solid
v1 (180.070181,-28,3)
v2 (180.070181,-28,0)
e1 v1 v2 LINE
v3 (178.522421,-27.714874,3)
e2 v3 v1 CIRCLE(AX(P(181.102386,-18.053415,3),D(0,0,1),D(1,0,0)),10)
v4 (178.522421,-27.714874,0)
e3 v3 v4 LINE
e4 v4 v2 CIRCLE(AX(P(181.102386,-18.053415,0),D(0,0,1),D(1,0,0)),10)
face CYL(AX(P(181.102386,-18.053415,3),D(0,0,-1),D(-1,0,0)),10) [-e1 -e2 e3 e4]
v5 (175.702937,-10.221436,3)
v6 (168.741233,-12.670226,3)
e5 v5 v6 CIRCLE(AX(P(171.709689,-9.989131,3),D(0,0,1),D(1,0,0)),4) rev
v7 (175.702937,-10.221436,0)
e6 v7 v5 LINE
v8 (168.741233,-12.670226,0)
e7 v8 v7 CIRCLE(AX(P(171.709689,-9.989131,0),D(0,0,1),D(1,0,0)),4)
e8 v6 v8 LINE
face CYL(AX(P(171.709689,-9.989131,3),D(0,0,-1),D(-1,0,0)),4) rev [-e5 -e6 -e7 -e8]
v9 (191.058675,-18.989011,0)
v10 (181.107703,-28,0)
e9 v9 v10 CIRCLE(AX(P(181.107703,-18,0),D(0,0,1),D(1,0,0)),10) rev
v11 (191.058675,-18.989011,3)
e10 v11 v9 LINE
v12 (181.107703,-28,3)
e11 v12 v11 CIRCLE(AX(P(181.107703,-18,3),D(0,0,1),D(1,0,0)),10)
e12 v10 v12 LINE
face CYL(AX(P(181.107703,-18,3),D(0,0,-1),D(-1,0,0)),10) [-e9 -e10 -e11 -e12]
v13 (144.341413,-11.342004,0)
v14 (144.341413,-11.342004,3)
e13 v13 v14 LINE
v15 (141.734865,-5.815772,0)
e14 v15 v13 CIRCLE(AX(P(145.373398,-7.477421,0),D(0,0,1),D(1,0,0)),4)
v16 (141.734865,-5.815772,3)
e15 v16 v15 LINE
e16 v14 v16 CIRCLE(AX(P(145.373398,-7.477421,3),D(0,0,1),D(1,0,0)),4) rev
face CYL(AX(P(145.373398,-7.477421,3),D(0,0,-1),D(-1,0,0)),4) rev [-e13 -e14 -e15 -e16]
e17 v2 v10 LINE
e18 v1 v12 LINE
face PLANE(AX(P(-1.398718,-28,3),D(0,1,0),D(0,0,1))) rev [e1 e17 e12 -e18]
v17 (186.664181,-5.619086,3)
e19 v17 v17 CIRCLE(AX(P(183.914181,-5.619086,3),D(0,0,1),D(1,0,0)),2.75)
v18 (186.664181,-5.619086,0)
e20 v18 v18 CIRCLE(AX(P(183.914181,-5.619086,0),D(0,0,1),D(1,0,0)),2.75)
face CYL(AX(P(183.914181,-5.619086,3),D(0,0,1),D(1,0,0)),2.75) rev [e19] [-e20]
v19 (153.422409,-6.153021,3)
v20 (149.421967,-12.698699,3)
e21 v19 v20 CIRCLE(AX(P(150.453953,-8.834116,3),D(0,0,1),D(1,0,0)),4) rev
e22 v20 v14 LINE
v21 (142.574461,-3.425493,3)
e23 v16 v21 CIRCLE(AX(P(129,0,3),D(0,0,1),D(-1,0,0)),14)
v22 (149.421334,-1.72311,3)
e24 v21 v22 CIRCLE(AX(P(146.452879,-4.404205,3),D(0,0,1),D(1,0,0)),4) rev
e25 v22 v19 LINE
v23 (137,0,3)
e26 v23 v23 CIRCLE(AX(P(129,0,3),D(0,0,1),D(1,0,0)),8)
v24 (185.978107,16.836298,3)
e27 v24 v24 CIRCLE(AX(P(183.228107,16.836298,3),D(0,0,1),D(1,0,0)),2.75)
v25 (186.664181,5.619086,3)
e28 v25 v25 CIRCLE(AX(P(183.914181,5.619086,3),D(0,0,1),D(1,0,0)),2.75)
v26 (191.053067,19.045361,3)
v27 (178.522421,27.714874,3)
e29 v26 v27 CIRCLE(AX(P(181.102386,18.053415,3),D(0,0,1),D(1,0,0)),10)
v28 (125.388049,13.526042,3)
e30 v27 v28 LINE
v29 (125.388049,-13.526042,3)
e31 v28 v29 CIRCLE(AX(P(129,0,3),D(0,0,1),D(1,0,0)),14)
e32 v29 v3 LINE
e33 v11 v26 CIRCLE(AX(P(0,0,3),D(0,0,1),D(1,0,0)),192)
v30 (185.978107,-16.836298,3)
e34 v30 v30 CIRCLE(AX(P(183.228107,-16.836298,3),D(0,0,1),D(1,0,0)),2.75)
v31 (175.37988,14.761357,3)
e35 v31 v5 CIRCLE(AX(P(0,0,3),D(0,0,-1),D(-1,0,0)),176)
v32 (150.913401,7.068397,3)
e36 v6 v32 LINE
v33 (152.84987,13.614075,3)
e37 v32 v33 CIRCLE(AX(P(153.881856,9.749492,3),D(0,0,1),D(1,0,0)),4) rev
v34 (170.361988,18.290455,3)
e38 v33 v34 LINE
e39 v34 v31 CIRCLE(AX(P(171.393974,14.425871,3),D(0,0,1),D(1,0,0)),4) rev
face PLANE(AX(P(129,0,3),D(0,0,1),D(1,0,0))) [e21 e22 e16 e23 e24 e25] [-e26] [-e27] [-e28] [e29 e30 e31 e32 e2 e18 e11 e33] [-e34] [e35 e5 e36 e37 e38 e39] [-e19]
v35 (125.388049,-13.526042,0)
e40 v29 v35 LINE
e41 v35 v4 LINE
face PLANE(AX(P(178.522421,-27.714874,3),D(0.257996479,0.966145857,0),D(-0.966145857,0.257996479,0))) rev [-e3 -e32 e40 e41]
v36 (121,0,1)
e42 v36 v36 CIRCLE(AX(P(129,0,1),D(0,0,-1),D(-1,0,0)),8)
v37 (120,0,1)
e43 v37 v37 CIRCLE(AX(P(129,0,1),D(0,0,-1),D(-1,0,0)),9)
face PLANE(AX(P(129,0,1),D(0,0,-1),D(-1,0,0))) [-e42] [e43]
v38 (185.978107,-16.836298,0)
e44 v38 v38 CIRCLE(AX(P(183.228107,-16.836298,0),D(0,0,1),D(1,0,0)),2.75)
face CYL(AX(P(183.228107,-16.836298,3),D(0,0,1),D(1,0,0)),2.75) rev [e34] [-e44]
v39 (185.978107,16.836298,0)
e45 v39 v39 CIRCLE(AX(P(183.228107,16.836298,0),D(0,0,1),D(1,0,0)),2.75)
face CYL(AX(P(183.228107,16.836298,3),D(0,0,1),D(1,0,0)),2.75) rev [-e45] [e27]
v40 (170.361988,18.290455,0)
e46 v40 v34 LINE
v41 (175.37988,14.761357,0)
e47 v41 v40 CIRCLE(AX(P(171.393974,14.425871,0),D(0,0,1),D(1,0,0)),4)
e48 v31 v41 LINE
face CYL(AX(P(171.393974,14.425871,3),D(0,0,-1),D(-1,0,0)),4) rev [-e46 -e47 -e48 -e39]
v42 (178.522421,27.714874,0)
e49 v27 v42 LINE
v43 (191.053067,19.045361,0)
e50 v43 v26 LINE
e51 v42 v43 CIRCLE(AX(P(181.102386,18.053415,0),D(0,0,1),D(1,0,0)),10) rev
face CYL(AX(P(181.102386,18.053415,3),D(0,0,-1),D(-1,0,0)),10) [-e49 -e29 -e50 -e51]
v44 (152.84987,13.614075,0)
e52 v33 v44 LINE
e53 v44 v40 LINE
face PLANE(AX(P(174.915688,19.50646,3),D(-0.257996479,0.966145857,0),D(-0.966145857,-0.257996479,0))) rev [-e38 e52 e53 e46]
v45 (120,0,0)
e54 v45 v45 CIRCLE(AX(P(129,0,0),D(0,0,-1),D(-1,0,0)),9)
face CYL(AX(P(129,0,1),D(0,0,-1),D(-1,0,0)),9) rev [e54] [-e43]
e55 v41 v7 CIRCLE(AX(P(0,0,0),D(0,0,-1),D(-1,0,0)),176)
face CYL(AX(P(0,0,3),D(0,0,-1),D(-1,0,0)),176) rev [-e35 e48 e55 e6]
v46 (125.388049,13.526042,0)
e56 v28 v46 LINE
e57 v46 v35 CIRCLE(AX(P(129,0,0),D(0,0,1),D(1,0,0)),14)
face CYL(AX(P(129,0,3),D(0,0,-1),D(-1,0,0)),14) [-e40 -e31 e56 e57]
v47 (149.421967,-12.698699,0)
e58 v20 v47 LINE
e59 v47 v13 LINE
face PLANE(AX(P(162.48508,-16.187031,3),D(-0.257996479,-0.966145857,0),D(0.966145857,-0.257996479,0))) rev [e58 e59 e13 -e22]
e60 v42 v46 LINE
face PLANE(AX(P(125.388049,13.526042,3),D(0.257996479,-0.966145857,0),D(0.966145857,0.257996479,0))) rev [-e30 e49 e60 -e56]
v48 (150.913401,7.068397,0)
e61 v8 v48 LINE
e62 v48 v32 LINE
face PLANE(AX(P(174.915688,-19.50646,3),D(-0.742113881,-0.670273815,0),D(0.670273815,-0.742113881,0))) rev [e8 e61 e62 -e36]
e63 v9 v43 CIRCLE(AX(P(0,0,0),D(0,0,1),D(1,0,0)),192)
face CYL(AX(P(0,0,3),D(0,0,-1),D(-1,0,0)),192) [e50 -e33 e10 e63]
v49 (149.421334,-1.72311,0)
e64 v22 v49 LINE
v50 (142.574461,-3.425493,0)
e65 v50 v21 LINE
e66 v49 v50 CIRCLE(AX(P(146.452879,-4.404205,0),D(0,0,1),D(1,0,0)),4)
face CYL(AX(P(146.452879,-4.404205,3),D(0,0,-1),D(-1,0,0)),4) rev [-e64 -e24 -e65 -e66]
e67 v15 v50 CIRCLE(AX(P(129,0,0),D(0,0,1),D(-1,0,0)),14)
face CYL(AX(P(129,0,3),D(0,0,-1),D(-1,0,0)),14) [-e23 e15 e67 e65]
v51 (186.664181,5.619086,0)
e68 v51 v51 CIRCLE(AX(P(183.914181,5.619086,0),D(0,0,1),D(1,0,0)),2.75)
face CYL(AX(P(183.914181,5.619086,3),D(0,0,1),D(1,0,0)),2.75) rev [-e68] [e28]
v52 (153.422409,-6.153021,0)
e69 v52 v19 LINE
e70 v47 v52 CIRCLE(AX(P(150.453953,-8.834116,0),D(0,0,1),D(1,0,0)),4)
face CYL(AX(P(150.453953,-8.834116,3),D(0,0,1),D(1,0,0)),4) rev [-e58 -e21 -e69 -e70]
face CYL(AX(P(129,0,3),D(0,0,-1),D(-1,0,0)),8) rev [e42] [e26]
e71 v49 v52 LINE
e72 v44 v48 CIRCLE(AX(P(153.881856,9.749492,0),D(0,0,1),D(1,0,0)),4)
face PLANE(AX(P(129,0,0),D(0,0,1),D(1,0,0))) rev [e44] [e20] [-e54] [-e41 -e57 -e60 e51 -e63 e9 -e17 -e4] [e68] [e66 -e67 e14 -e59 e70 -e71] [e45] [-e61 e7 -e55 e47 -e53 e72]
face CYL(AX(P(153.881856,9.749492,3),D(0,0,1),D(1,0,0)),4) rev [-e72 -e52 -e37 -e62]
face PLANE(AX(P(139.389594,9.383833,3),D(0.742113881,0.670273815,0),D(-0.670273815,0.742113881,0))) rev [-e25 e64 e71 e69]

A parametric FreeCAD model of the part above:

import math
import FreeCAD as App
import Part
import Sketcher

V = App.Vector
Q = App.Units.Quantity


def edges_at(feature, points):
    """Names of the edges that pass closest to the given points."""
    edges = feature.Shape.Edges
    near = lambda p: min(range(len(edges)), key=lambda i: edges[i].distToShape(Part.Vertex(*p))[0])
    return sorted({f"Edge{near(p) + 1}" for p in points})

doc = App.newDocument("Part")
body = doc.addObject("PartDesign::Body", "Body")

sketch1 = body.newObject("Sketcher::SketchObject", "Sketch")
sketch1.AttachmentSupport = (doc.getObject("XY_Plane"), [""])
sketch1.MapMode = "FlatFace"
sketch1.addGeometry([
    Part.LineSegment(V(-9.5, -3.1, 0), V(-1.4, -28, 0)),
    Part.LineSegment(V(-1.4, -28, 0), V(189.9, -28, 0)),
    Part.ArcOfCircle(Part.Circle(V(0, 0, 0), V(0, 0, 1), 192), math.radians(-8.39), math.radians(9.19)),
    Part.LineSegment(V(189.5, 30.7, 0), V(125.4, 13.5, 0)),
    Part.ArcOfCircle(Part.Circle(V(129, 0, 0), V(0, 0, 1), 14), math.radians(104.95), math.radians(124.85)),
    Part.LineSegment(V(121, 11.5, 0), V(83.8, -14.4, 0)),
    Part.LineSegment(V(83.8, -14.4, 0), V(63.7, -22, 0)),
    Part.LineSegment(V(63.7, -22, 0), V(35.7, -22, 0)),
    Part.LineSegment(V(35.7, -22, 0), V(20.7, -13, 0)),
    Part.LineSegment(V(20.7, -13, 0), V(8.3, 5.5, 0)),
    Part.ArcOfCircle(Part.Circle(V(0, 0, 0), V(0, 0, 1), 10), math.radians(34), math.radians(198)),
    Part.Circle(V(129, 0, 0), V(0, 0, 1), 8),
], False)
sketch1.addConstraint([
    Sketcher.Constraint("Coincident", 0, 2, 1, 1),
    Sketcher.Constraint("Coincident", 1, 2, 2, 1),
    Sketcher.Constraint("Coincident", 2, 2, 3, 1),
    Sketcher.Constraint("Tangent", 3, 2, 4, 1),
    Sketcher.Constraint("Tangent", 4, 2, 5, 1),
    Sketcher.Constraint("Coincident", 5, 2, 6, 1),
    Sketcher.Constraint("Coincident", 6, 2, 7, 1),
    Sketcher.Constraint("Coincident", 7, 2, 8, 1),
    Sketcher.Constraint("Coincident", 8, 2, 9, 1),
    Sketcher.Constraint("Tangent", 9, 2, 10, 1),
    Sketcher.Constraint("Tangent", 10, 2, 0, 1),
    Sketcher.Constraint("Horizontal", 1),
    Sketcher.Constraint("Horizontal", 7),
    Sketcher.Constraint("Coincident", 2, 3, -1, 1),
    Sketcher.Constraint("Coincident", 10, 3, -1, 1),
    Sketcher.Constraint("Coincident", 11, 3, 4, 3),
    Sketcher.Constraint("PointOnObject", 4, 3, -1),
    Sketcher.Constraint("Diameter", 11, Q("16 mm")),
    Sketcher.Constraint("Radius", 2, Q("192 mm")),
    Sketcher.Constraint("Radius", 4, Q("14 mm")),
    Sketcher.Constraint("Radius", 10, Q("10 mm")),
    Sketcher.Constraint("DistanceX", -1, 1, 4, 3, Q("129 mm")),
    Sketcher.Constraint("DistanceY", 0, 2, -1, 1, Q("28 mm")),
    Sketcher.Constraint("DistanceY", 6, 2, -1, 1, Q("22 mm")),
    Sketcher.Constraint("DistanceX", 1, 1, 1, 2, Q("191.346079 mm")),
    Sketcher.Constraint("DistanceX", 7, 2, 7, 1, Q("27.986641 mm")),
    Sketcher.Constraint("DistanceX", 0, 2, 9, 2, Q("9.725301 mm")),
    Sketcher.Constraint("Distance", 3, Q("66.396559 mm")),
    Sketcher.Constraint("Distance", 5, Q("45.37135 mm")),
    Sketcher.Constraint("DistanceX", -1, 1, 6, 2, Q("63.71809 mm")),
    Sketcher.Constraint("DistanceX", -1, 1, 8, 2, Q("20.675179 mm")),
    Sketcher.Constraint("DistanceY", 4, 2, 3, 2, Q("2.03676 mm")),
])
pad1 = body.newObject("PartDesign::Pad", "Pad")
pad1.Profile = sketch1
pad1.Length = 3

sketch2 = body.newObject("Sketcher::SketchObject", "Sketch001")
sketch2.AttachmentSupport = (doc.getObject("XY_Plane"), [""])
sketch2.MapMode = "FlatFace"
sketch2.AttachmentOffset = App.Placement(V(0, 0, 3), App.Rotation())
sketch2.addGeometry([
    Part.Circle(V(9, -25, 0), V(0, 0, 1), 1.7),
    Part.Circle(V(40.5, -25, 0), V(0, 0, 1), 1.7),
    Part.Circle(V(72, -25, 0), V(0, 0, 1), 1.7),
], False)
sketch2.addConstraint([
    Sketcher.Constraint("Equal", 0, 1),
    Sketcher.Constraint("Equal", 1, 2),
    Sketcher.Constraint("Horizontal", 0, 3, 1, 3),
    Sketcher.Constraint("Horizontal", 1, 3, 2, 3),
    Sketcher.Constraint("Diameter", 0, Q("3.4 mm")),
    Sketcher.Constraint("DistanceX", -1, 1, 0, 3, Q("9 mm")),
    Sketcher.Constraint("DistanceY", 0, 3, -1, 1, Q("25 mm")),
    Sketcher.Constraint("DistanceX", -1, 1, 2, 3, Q("72 mm")),
    Sketcher.Constraint("DistanceX", -1, 1, 1, 3, Q("40.5 mm")),
])
doc.recompute()
hole = body.newObject("PartDesign::Hole", "Hole")
hole.Profile = sketch2
hole.ThreadType = "None"
hole.Diameter = 3.4
hole.DepthType = "ThroughAll"

sketch3 = body.newObject("Sketcher::SketchObject", "Sketch002")
sketch3.AttachmentSupport = (doc.getObject("XY_Plane"), [""])
sketch3.MapMode = "FlatFace"
sketch3.AttachmentOffset = App.Placement(V(0, 0, 3), App.Rotation())
sketch3.addGeometry(Part.Circle(V(0, 0, 0), V(0, 0, 1), 2.8), False)
sketch3.addConstraint([
    Sketcher.Constraint("Coincident", 0, 3, -1, 1),
    Sketcher.Constraint("Diameter", 0, Q("5.5 mm")),
])
doc.recompute()
hole2 = body.newObject("PartDesign::Hole", "Hole001")
hole2.Profile = sketch3
hole2.ThreadType = "None"
hole2.Diameter = 5.5
hole2.DepthType = "ThroughAll"

sketch4 = body.newObject("Sketcher::SketchObject", "Sketch003")
sketch4.AttachmentSupport = (doc.getObject("XY_Plane"), [""])
sketch4.MapMode = "FlatFace"
sketch4.AttachmentOffset = App.Placement(V(0, 0, 3), App.Rotation())
sketch4.addGeometry([
    Part.Circle(V(183.2, 16.8, 0), V(0, 0, 1), 2.8),
    Part.Circle(V(183.9, 5.6, 0), V(0, 0, 1), 2.8),
    Part.Circle(V(183.9, -5.6, 0), V(0, 0, 1), 2.8),
    Part.Circle(V(183.2, -16.8, 0), V(0, 0, 1), 2.8),
], False)
sketch4.addConstraint([
    Sketcher.Constraint("Equal", 0, 1),
    Sketcher.Constraint("Equal", 1, 2),
    Sketcher.Constraint("Equal", 2, 3),
    Sketcher.Constraint("Symmetric", 1, 3, 2, 3, -1),
    Sketcher.Constraint("Symmetric", 0, 3, 3, 3, -1),
    Sketcher.Constraint("Diameter", 0, Q("5.5 mm")),
    Sketcher.Constraint("DistanceX", -1, 1, 1, 3, Q("183.914181 mm")),
    Sketcher.Constraint("DistanceY", 1, 3, 0, 3, Q("11.217211 mm")),
    Sketcher.Constraint("DistanceX", -1, 1, 0, 3, Q("183.228107 mm")),
    Sketcher.Constraint("DistanceY", -1, 1, 0, 3, Q("16.836298 mm")),
])
doc.recompute()
hole3 = body.newObject("PartDesign::Hole", "Hole002")
hole3.Profile = sketch4
hole3.ThreadType = "None"
hole3.Diameter = 5.5
hole3.DepthType = "ThroughAll"
doc.recompute()

fillet = body.newObject("PartDesign::Fillet", "Fillet")
fillet.Base = (hole3, edges_at(hole3, [
    (35.731, -22, 1.5),
    (63.718, -22, 1.5),
    (83.766, -14.436, 1.5),
    (189.537, 30.656, 1.5),
    (189.947, -28, 1.5),
    (20.675, -13.029, 1.5),
]))
fillet.Radius = 10
doc.recompute()

fillet2 = body.newObject("PartDesign::Fillet", "Fillet001")
fillet2.Base = (fillet, edges_at(fillet, [(-1.399, -28, 1.5)]))
fillet2.Radius = 5

sketch5 = body.newObject("Sketcher::SketchObject", "Sketch004")
sketch5.AttachmentSupport = (doc.getObject("XY_Plane"), [""])
sketch5.MapMode = "FlatFace"
sketch5.addGeometry(Part.Circle(V(129, 0, 0), V(0, 0, 1), 9), False)
sketch5.addConstraint([
    Sketcher.Constraint("PointOnObject", 0, 3, -1),
    Sketcher.Constraint("Diameter", 0, Q("18 mm")),
    Sketcher.Constraint("DistanceX", -1, 1, 0, 3, Q("129 mm")),
])
pocket1 = body.newObject("PartDesign::Pocket", "Pocket")
pocket1.Profile = sketch5
pocket1.Length = 1
pocket1.Reversed = True

sketch6 = body.newObject("Sketcher::SketchObject", "Sketch005")
sketch6.AttachmentSupport = (doc.getObject("XY_Plane"), [""])
sketch6.MapMode = "FlatFace"
sketch6.AttachmentOffset = App.Placement(V(0, 0, 3), App.Rotation())
sketch6.addGeometry([
    Part.LineSegment(V(11.5, -23.3, 0), V(6.5, -23.3, 0)),
    Part.ArcOfCircle(Part.Circle(V(6.5, -25, 0), V(0, 0, 1), 1.7), math.radians(90), math.radians(270)),
    Part.LineSegment(V(6.5, -26.7, 0), V(11.5, -26.7, 0)),
    Part.ArcOfCircle(Part.Circle(V(11.5, -25, 0), V(0, 0, 1), 1.7), math.radians(-90), math.radians(90)),
    Part.LineSegment(V(43, -23.3, 0), V(38, -23.3, 0)),
    Part.ArcOfCircle(Part.Circle(V(38, -25, 0), V(0, 0, 1), 1.7), math.radians(90), math.radians(270)),
    Part.LineSegment(V(38, -26.7, 0), V(43, -26.7, 0)),
    Part.ArcOfCircle(Part.Circle(V(43, -25, 0), V(0, 0, 1), 1.7), math.radians(-90), math.radians(90)),
    Part.LineSegment(V(74.5, -23.3, 0), V(69.5, -23.3, 0)),
    Part.ArcOfCircle(Part.Circle(V(69.5, -25, 0), V(0, 0, 1), 1.7), math.radians(90), math.radians(270)),
    Part.LineSegment(V(69.5, -26.7, 0), V(74.5, -26.7, 0)),
    Part.ArcOfCircle(Part.Circle(V(74.5, -25, 0), V(0, 0, 1), 1.7), math.radians(-90), math.radians(90)),
], False)
sketch6.addConstraint([
    Sketcher.Constraint("Tangent", 0, 2, 1, 1),
    Sketcher.Constraint("Tangent", 1, 2, 2, 1),
    Sketcher.Constraint("Tangent", 2, 2, 3, 1),
    Sketcher.Constraint("Tangent", 3, 2, 0, 1),
    Sketcher.Constraint("Tangent", 4, 2, 5, 1),
    Sketcher.Constraint("Tangent", 5, 2, 6, 1),
    Sketcher.Constraint("Tangent", 6, 2, 7, 1),
    Sketcher.Constraint("Tangent", 7, 2, 4, 1),
    Sketcher.Constraint("Tangent", 8, 2, 9, 1),
    Sketcher.Constraint("Tangent", 9, 2, 10, 1),
    Sketcher.Constraint("Tangent", 10, 2, 11, 1),
    Sketcher.Constraint("Tangent", 11, 2, 8, 1),
    Sketcher.Constraint("Horizontal", 0),
    Sketcher.Constraint("Horizontal", 2),
    Sketcher.Constraint("Horizontal", 4),
    Sketcher.Constraint("Horizontal", 6),
    Sketcher.Constraint("Horizontal", 8),
    Sketcher.Constraint("Horizontal", 10),
    Sketcher.Constraint("Equal", 3, 5),
    Sketcher.Constraint("Equal", 7, 9),
    Sketcher.Constraint("Horizontal", 3, 3, 5, 3),
    Sketcher.Constraint("Horizontal", 7, 3, 9, 3),
    Sketcher.Constraint("Equal", 2, 4),
    Sketcher.Constraint("Equal", 6, 8),
    Sketcher.Constraint("Radius", 1, Q("1.7 mm")),
    Sketcher.Constraint("DistanceX", 0, 2, 0, 1, Q("5 mm")),
    Sketcher.Constraint("DistanceY", 1, 3, -1, 1, Q("25 mm")),
    Sketcher.Constraint("DistanceX", -1, 1, 5, 3, Q("38 mm")),
    Sketcher.Constraint("DistanceX", 3, 3, 9, 3, Q("58 mm")),
    Sketcher.Constraint("DistanceX", -1, 1, 1, 3, Q("6.5 mm")),
])
pocket2 = body.newObject("PartDesign::Pocket", "Pocket001")
pocket2.Profile = sketch6
pocket2.Type = "ThroughAll"

sketch7 = body.newObject("Sketcher::SketchObject", "Sketch006")
sketch7.AttachmentSupport = (doc.getObject("XY_Plane"), [""])
sketch7.MapMode = "FlatFace"
sketch7.addGeometry([
    Part.LineSegment(V(125, -14, 0), V(179, -28, 0)),
    Part.ArcOfCircle(Part.Circle(V(181, -18, 0), V(0, 0, 1), 10), math.radians(-105), math.radians(-6)),
    Part.LineSegment(V(191, -19, 0), V(195, -30, 0)),
    Part.LineSegment(V(195, -30, 0), V(-9, -30, 0)),
    Part.LineSegment(V(-9, -30, 0), V(-18, 19, 0)),
    Part.LineSegment(V(-18, 19, 0), V(125, 14, 0)),
    Part.ArcOfCircle(Part.Circle(V(129, 0, 0), V(0, 0, 1), 14), math.radians(105), math.radians(255)),
], False)
sketch7.addConstraint([
    Sketcher.Constraint("Tangent", 0, 2, 1, 1),
    Sketcher.Constraint("Coincident", 1, 2, 2, 1),
    Sketcher.Constraint("Coincident", 2, 2, 3, 1),
    Sketcher.Constraint("Coincident", 3, 2, 4, 1),
    Sketcher.Constraint("Coincident", 4, 2, 5, 1),
    Sketcher.Constraint("Coincident", 5, 2, 6, 1),
    Sketcher.Constraint("Tangent", 6, 2, 0, 1),
    Sketcher.Constraint("Horizontal", 3),
    Sketcher.Constraint("Symmetric", 5, 2, 6, 2, -1),
    Sketcher.Constraint("Radius", 1, Q("10 mm")),
    Sketcher.Constraint("Radius", 6, Q("14 mm")),
    Sketcher.Constraint("DistanceX", -1, 1, 6, 3, Q("129 mm")),
    Sketcher.Constraint("DistanceY", 1, 3, 4, 2, Q("36.744002 mm")),
    Sketcher.Constraint("DistanceX", 4, 2, 1, 2, Q("208.761602 mm")),
    Sketcher.Constraint("Distance", 0, Q("54.996222 mm")),
    Sketcher.Constraint("Distance", 5, Q("143.189752 mm")),
    Sketcher.Constraint("DistanceX", 3, 2, 3, 1, Q("204.051385 mm")),
    Sketcher.Constraint("DistanceX", -1, 1, 0, 2, Q("178.522421 mm")),
    Sketcher.Constraint("DistanceX", -1, 1, 2, 2, Q("194.86561 mm")),
    Sketcher.Constraint("DistanceY", 2, 2, -1, 1, Q("30.078541 mm")),
])
pocket3 = body.newObject("PartDesign::Pocket", "Pocket002")
pocket3.Profile = sketch7
pocket3.Type = "ThroughAll"
pocket3.Reversed = True

sketch8 = body.newObject("Sketcher::SketchObject", "Sketch007")
sketch8.AttachmentSupport = (doc.getObject("XY_Plane"), [""])
sketch8.MapMode = "FlatFace"
sketch8.addGeometry([
    Part.LineSegment(V(147, 12, 0), V(175, 20, 0)),
    Part.ArcOfCircle(Part.Circle(V(0, 0, 0), V(0, 0, 1), 176), math.radians(-6.36), math.radians(6.36)),
    Part.LineSegment(V(175, -20, 0), V(147, 12, 0)),
    Part.LineSegment(V(139, 9, 0), V(162, -16, 0)),
    Part.LineSegment(V(162, -16, 0), V(139, -10, 0)),
    Part.ArcOfCircle(Part.Circle(V(129, 0, 0), V(0, 0, 1), 14), math.radians(-45), math.radians(42)),
], False)
sketch8.addConstraint([
    Sketcher.Constraint("Coincident", 0, 2, 1, 2),
    Sketcher.Constraint("Coincident", 1, 1, 2, 1),
    Sketcher.Constraint("Coincident", 2, 2, 0, 1),
    Sketcher.Constraint("Coincident", 3, 2, 4, 1),
    Sketcher.Constraint("Coincident", 4, 2, 5, 1),
    Sketcher.Constraint("Tangent", 5, 2, 3, 1),
    Sketcher.Constraint("Coincident", 1, 3, -1, 1),
    Sketcher.Constraint("PointOnObject", 5, 3, -1),
    Sketcher.Constraint("Parallel", 2, 3),
    Sketcher.Constraint("Vertical", 0, 2, 1, 1),
    Sketcher.Constraint("Radius", 1, Q("176 mm")),
    Sketcher.Constraint("Radius", 5, Q("14 mm")),
    Sketcher.Constraint("DistanceX", -1, 1, 5, 3, Q("129 mm")),
    Sketcher.Constraint("DistanceY", -1, 1, 2, 2, Q("11.9255 mm")),
    Sketcher.Constraint("DistanceX", 2, 2, 0, 2, Q("28.389201 mm")),
    Sketcher.Constraint("DistanceY", 1, 1, 4, 2, Q("9.615398 mm")),
    Sketcher.Constraint("Distance", 0, Q("29.38397 mm")),
    Sketcher.Constraint("DistanceX", -1, 1, 3, 2, Q("162.48508 mm")),
])
pocket4 = body.newObject("PartDesign::Pocket", "Pocket003")
pocket4.Profile = sketch8
pocket4.Type = "ThroughAll"
pocket4.Reversed = True
doc.recompute()

fillet3 = body.newObject("PartDesign::Fillet", "Fillet002")
fillet3.Base = (pocket4, edges_at(pocket4, [
    (174.916, -19.506, 1.5),
    (174.916, 19.506, 1.5),
    (146.526, 11.925, 1.5),
    (139.39, 9.384, 1.5),
    (138.908, -9.891, 1.5),
    (162.485, -16.187, 1.5),
]))
fillet3.Radius = 4

doc.recompute()
